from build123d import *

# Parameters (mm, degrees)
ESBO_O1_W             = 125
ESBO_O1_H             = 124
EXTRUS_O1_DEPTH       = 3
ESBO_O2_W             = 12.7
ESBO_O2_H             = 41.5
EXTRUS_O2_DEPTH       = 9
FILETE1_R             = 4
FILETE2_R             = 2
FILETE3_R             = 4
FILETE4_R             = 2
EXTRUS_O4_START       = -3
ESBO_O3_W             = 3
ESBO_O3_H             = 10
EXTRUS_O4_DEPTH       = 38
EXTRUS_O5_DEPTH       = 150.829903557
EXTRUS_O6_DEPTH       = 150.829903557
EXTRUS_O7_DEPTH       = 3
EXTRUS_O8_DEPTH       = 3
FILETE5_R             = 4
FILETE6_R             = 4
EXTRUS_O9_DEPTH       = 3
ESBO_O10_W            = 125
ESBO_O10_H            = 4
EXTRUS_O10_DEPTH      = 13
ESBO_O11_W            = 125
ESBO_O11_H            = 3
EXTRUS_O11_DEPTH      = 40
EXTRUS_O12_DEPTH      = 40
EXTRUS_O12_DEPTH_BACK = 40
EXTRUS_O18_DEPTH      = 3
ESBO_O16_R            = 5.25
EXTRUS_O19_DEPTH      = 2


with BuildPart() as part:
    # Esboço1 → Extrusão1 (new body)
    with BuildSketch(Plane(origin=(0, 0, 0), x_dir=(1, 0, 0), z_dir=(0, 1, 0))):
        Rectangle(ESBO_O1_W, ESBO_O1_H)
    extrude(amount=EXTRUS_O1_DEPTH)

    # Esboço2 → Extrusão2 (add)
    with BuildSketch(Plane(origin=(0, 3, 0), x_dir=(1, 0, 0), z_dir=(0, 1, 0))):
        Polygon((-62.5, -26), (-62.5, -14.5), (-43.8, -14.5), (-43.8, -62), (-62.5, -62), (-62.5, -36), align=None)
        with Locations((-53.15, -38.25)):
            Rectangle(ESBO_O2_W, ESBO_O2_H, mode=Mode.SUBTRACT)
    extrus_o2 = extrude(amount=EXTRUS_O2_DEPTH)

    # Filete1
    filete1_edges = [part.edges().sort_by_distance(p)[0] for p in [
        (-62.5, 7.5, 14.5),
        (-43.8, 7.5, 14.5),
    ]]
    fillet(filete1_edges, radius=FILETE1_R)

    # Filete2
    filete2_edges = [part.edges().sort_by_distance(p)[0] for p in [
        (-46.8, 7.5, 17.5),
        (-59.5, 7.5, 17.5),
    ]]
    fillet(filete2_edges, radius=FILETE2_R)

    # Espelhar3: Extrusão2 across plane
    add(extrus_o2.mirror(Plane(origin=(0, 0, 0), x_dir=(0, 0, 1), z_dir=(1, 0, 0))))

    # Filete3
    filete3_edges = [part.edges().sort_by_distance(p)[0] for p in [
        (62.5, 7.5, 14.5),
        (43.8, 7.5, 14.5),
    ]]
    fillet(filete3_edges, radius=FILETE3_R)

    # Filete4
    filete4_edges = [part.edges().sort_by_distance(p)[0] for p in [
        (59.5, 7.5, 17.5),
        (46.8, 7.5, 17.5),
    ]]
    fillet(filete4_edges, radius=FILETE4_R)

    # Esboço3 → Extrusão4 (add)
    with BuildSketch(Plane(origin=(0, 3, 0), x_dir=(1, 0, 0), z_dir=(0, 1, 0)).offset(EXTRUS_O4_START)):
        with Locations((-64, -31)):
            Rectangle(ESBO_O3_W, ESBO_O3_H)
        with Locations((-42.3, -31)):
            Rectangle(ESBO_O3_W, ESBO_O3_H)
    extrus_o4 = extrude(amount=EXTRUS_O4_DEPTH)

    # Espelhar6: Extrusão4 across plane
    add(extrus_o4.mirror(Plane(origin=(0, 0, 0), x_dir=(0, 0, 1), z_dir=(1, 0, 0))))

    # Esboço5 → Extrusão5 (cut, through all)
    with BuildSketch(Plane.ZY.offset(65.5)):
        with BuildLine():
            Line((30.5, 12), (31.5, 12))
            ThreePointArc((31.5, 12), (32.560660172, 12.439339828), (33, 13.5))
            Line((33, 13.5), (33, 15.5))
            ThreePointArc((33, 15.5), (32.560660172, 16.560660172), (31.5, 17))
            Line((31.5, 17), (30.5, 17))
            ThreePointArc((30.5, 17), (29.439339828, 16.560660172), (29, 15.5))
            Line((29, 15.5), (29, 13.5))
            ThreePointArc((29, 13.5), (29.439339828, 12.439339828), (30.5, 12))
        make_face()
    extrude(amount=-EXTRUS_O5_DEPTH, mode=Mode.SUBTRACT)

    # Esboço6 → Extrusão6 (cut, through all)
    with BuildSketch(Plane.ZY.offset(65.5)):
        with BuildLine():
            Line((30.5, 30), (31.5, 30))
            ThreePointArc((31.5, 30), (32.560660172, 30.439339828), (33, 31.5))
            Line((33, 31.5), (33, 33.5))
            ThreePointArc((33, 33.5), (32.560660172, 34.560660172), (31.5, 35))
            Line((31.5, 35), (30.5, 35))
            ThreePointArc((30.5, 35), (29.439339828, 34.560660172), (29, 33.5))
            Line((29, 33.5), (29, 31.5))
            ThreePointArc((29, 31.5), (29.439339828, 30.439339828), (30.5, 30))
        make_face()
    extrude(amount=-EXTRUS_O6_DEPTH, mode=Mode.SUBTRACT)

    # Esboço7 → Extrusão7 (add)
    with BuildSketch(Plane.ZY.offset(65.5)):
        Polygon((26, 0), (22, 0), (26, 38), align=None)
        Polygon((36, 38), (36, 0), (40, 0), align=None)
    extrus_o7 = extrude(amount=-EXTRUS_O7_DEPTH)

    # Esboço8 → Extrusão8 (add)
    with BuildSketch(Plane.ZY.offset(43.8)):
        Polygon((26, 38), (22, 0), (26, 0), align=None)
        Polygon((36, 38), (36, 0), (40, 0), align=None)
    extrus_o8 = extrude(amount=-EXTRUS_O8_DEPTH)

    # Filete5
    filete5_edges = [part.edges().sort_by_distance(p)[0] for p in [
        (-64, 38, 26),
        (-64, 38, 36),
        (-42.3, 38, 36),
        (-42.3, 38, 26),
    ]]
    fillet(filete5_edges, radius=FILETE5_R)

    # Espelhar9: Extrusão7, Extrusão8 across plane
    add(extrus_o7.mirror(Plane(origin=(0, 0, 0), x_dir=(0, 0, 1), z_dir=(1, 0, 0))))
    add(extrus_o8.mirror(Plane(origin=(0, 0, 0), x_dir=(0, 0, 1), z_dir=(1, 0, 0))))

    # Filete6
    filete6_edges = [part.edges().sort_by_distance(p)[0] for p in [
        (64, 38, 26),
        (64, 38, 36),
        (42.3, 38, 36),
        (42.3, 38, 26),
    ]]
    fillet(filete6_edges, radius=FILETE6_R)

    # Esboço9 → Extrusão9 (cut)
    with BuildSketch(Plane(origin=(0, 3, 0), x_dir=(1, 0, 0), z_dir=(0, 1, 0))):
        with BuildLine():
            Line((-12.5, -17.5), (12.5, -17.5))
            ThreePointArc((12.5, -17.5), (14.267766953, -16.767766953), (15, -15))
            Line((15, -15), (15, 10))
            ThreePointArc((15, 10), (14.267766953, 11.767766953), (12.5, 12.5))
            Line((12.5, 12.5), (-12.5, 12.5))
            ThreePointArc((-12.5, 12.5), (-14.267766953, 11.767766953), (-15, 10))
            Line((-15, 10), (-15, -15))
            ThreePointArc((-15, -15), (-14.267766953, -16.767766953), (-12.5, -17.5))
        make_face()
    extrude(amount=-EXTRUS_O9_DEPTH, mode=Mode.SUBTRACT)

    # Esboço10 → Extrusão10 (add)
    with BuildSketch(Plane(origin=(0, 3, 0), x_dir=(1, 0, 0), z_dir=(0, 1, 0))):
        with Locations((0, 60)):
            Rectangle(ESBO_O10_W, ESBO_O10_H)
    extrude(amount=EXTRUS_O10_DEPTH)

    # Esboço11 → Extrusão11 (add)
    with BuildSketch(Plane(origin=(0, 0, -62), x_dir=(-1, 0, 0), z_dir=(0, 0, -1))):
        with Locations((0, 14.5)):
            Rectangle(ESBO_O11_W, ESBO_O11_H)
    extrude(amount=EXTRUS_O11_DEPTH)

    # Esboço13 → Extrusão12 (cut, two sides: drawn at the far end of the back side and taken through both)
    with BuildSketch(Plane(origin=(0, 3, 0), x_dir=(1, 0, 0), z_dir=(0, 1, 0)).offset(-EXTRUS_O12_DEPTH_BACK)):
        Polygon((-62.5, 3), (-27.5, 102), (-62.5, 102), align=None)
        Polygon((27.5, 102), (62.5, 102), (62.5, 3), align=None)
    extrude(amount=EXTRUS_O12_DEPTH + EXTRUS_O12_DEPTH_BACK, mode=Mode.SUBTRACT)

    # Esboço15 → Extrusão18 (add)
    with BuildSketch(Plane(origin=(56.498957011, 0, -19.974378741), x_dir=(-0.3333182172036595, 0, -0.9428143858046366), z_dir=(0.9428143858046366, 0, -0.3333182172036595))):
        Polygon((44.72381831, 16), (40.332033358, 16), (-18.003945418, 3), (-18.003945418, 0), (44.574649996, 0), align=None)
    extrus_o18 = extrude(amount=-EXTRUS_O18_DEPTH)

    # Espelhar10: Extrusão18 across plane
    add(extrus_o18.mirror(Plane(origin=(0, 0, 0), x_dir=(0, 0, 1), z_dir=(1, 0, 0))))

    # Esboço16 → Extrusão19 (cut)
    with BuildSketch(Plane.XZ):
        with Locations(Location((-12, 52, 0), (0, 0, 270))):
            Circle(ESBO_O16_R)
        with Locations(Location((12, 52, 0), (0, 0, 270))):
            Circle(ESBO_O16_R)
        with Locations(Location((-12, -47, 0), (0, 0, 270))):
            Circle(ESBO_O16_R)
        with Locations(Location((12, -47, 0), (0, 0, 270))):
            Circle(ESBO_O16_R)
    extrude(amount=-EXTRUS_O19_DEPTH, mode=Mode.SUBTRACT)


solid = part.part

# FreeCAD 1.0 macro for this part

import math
import FreeCAD as App
import Part
import Sketcher
from FreeCAD import Vector


def edges_at(feature, points):
    """Names of the edges that pass closest to the given points."""
    edges = feature.Shape.Edges
    near = lambda p: min(range(len(edges)), key=lambda i: edges[i].distToShape(Part.Vertex(*p))[0])
    return sorted({f"Edge{near(p) + 1}" for p in points})

doc = App.newDocument("Part")
body = doc.addObject("PartDesign::Body", "Body")

# Sketch on XZ plane
sketch1 = body.newObject("Sketcher::SketchObject", "Sketch")
sketch1.AttachmentSupport = (doc.getObject("XZ_Plane"), [""])
sketch1.MapMode = "FlatFace"
sketch1.addGeometry([
    Part.LineSegment(Vector(-62.5, -62, 0), Vector(-62.5, 62, 0)),
    Part.LineSegment(Vector(-62.5, 62, 0), Vector(62.5, 62, 0)),
    Part.LineSegment(Vector(62.5, 62, 0), Vector(62.5, -62, 0)),
    Part.LineSegment(Vector(62.5, -62, 0), Vector(-62.5, -62, 0)),
], False)
sketch1.addConstraint([
    Sketcher.Constraint("Coincident", 0, 2, 1, 1),
    Sketcher.Constraint("Coincident", 1, 2, 2, 1),
    Sketcher.Constraint("Coincident", 2, 2, 3, 1),
    Sketcher.Constraint("Coincident", 3, 2, 0, 1),
    Sketcher.Constraint("Vertical", 0),
    Sketcher.Constraint("Horizontal", 1),
    Sketcher.Constraint("Vertical", 2),
    Sketcher.Constraint("Horizontal", 3),
    Sketcher.Constraint("Symmetric", 0, 2, 2, 2, -1, 1),
    Sketcher.Constraint("DistanceX", 1, 1, 1, 2, 125.0),
    Sketcher.Constraint("DistanceY", 0, 1, 0, 2, 124.0),
])
pad1 = body.newObject("PartDesign::Pad", "Pad")
pad1.Profile = sketch1
pad1.Length = 3
pad1.Reversed = True

# Sketch on XZ plane
sketch2 = body.newObject("Sketcher::SketchObject", "Sketch001")
sketch2.AttachmentSupport = (doc.getObject("XZ_Plane"), [""])
sketch2.MapMode = "FlatFace"
sketch2.AttachmentOffset = App.Placement(Vector(0, 0, -3), App.Rotation())
sketch2.addGeometry([
    Part.LineSegment(Vector(-62.5, 14.5, 0), Vector(-62.5, 62, 0)),  # 0
    Part.LineSegment(Vector(-62.5, 62, 0), Vector(-43.8, 62, 0)),  # 1
    Part.LineSegment(Vector(-43.8, 62, 0), Vector(-43.8, 14.5, 0)),  # 2
    Part.LineSegment(Vector(-43.8, 14.5, 0), Vector(-62.5, 14.5, 0)),  # 3
    Part.LineSegment(Vector(-59.5, 59, 0), Vector(-59.5, 17.5, 0)),  # 4
    Part.LineSegment(Vector(-59.5, 17.5, 0), Vector(-46.8, 17.5, 0)),  # 5
    Part.LineSegment(Vector(-46.8, 17.5, 0), Vector(-46.8, 59, 0)),  # 6
    Part.LineSegment(Vector(-46.8, 59, 0), Vector(-59.5, 59, 0)),  # 7
], False)
sketch2.addConstraint([
    Sketcher.Constraint("Coincident", 0, 2, 1, 1),
    Sketcher.Constraint("Coincident", 1, 2, 2, 1),
    Sketcher.Constraint("Coincident", 2, 2, 3, 1),
    Sketcher.Constraint("Coincident", 3, 2, 0, 1),
    Sketcher.Constraint("Coincident", 4, 2, 5, 1),
    Sketcher.Constraint("Coincident", 5, 2, 6, 1),
    Sketcher.Constraint("Coincident", 6, 2, 7, 1),
    Sketcher.Constraint("Coincident", 7, 2, 4, 1),
    Sketcher.Constraint("Vertical", 0),
    Sketcher.Constraint("Horizontal", 1),
    Sketcher.Constraint("Vertical", 2),
    Sketcher.Constraint("Horizontal", 3),
    Sketcher.Constraint("Vertical", 4),
    Sketcher.Constraint("Horizontal", 5),
    Sketcher.Constraint("Vertical", 6),
    Sketcher.Constraint("Horizontal", 7),
    Sketcher.Constraint("DistanceX", 1, 1, 1, 2, 18.7),
    Sketcher.Constraint("DistanceX", 5, 1, 5, 2, 12.7),
    Sketcher.Constraint("DistanceY", 0, 1, 0, 2, 47.5),
    Sketcher.Constraint("DistanceY", 4, 2, 4, 1, 41.5),
    Sketcher.Constraint("DistanceY", -1, 1, 0, 2, 62.0),
    Sketcher.Constraint("DistanceY", -1, 1, 6, 2, 59.0),
    Sketcher.Constraint("DistanceX", 3, 2, 4, 2, 3.0),
    Sketcher.Constraint("DistanceX", 0, 2, -1, 1, 62.5),
])
pad2 = body.newObject("PartDesign::Pad", "Pad001")
pad2.Profile = sketch2
pad2.Length = 9
pad2.Reversed = True
doc.recompute()

fillet = body.newObject("PartDesign::Fillet", "Fillet")
fillet.Base = (pad2, edges_at(pad2, [(-62.5, 7.5, 14.5), (-43.8, 7.5, 14.5)]))
fillet.Radius = 4
doc.recompute()

fillet2 = body.newObject("PartDesign::Fillet", "Fillet001")
fillet2.Base = (fillet, edges_at(fillet, [(-46.8, 7.5, 17.5), (-59.5, 7.5, 17.5)]))
fillet2.Radius = 2
doc.recompute()

mirrored = body.newObject("PartDesign::Mirrored", "Mirrored")
mirrored.Originals = [pad2]
mirrored.MirrorPlane = (doc.getObject("YZ_Plane"), [""])
body.Tip = mirrored
doc.recompute()

fillet3 = body.newObject("PartDesign::Fillet", "Fillet002")
fillet3.Base = (mirrored, edges_at(mirrored, [(62.5, 7.5, 14.5), (43.8, 7.5, 14.5)]))
fillet3.Radius = 4
doc.recompute()

fillet4 = body.newObject("PartDesign::Fillet", "Fillet003")
fillet4.Base = (fillet3, edges_at(fillet3, [(59.5, 7.5, 17.5), (46.8, 7.5, 17.5)]))
fillet4.Radius = 2

# Sketch on XZ plane
sketch3 = body.newObject("Sketcher::SketchObject", "Sketch002")
sketch3.AttachmentSupport = (doc.getObject("XZ_Plane"), [""])
sketch3.MapMode = "FlatFace"
sketch3.addGeometry([
    Part.LineSegment(Vector(-65.5, 26, 0), Vector(-65.5, 36, 0)),  # 0
    Part.LineSegment(Vector(-65.5, 36, 0), Vector(-62.5, 36, 0)),  # 1
    Part.LineSegment(Vector(-62.5, 36, 0), Vector(-62.5, 26, 0)),  # 2
    Part.LineSegment(Vector(-62.5, 26, 0), Vector(-65.5, 26, 0)),  # 3
    Part.LineSegment(Vector(-43.8, 26, 0), Vector(-43.8, 36, 0)),  # 4
    Part.LineSegment(Vector(-43.8, 36, 0), Vector(-40.8, 36, 0)),  # 5
    Part.LineSegment(Vector(-40.8, 36, 0), Vector(-40.8, 26, 0)),  # 6
    Part.LineSegment(Vector(-40.8, 26, 0), Vector(-43.8, 26, 0)),  # 7
], False)
sketch3.addConstraint([
    Sketcher.Constraint("Coincident", 0, 2, 1, 1),
    Sketcher.Constraint("Coincident", 1, 2, 2, 1),
    Sketcher.Constraint("Coincident", 2, 2, 3, 1),
    Sketcher.Constraint("Coincident", 3, 2, 0, 1),
    Sketcher.Constraint("Coincident", 4, 2, 5, 1),
    Sketcher.Constraint("Coincident", 5, 2, 6, 1),
    Sketcher.Constraint("Coincident", 6, 2, 7, 1),
    Sketcher.Constraint("Coincident", 7, 2, 4, 1),
    Sketcher.Constraint("Vertical", 0),
    Sketcher.Constraint("Horizontal", 1),
    Sketcher.Constraint("Vertical", 2),
    Sketcher.Constraint("Horizontal", 3),
    Sketcher.Constraint("Vertical", 4),
    Sketcher.Constraint("Horizontal", 5),
    Sketcher.Constraint("Vertical", 6),
    Sketcher.Constraint("Horizontal", 7),
    Sketcher.Constraint("Horizontal", 1, 2, 4, 2),
    Sketcher.Constraint("Horizontal", 3, 2, 6, 2),
    Sketcher.Constraint("Equal", 3, 5),
    Sketcher.Constraint("DistanceX", 1, 1, 1, 2, 3.0),
    Sketcher.Constraint("DistanceY", 0, 1, 0, 2, 10.0),
    Sketcher.Constraint("DistanceY", -1, 1, 0, 2, 36.0),
    Sketcher.Constraint("DistanceX", 0, 2, -1, 1, 65.5),
    Sketcher.Constraint("DistanceX", 4, 2, -1, 1, 43.8),
])
pad3 = body.newObject("PartDesign::Pad", "Pad002")
pad3.Profile = sketch3
pad3.Length = 38
pad3.Reversed = True
doc.recompute()

mirrored2 = body.newObject("PartDesign::Mirrored", "Mirrored001")
mirrored2.Originals = [pad3]
mirrored2.MirrorPlane = (doc.getObject("YZ_Plane"), [""])
body.Tip = mirrored2

# Sketch on YZ plane
sketch4 = body.newObject("Sketcher::SketchObject", "Sketch003")
sketch4.AttachmentSupport = (doc.getObject("YZ_Plane"), [""])
sketch4.MapMode = "FlatFace"
sketch4.AttachmentOffset = App.Placement(Vector(0, 0, -65.5), App.Rotation())
sketch4.addGeometry([
    Part.LineSegment(Vector(12, 30.5, 0), Vector(12, 31.5, 0)),  # 0
    Part.ArcOfCircle(Part.Circle(Vector(13.5, 31.5, 0), Vector(0, 0, 1), 1.5), math.radians(90), math.radians(180)),  # 1
    Part.LineSegment(Vector(13.5, 33, 0), Vector(15.5, 33, 0)),  # 2
    Part.ArcOfCircle(Part.Circle(Vector(15.5, 31.5, 0), Vector(0, 0, 1), 1.5), math.radians(0), math.radians(90)),  # 3
    Part.LineSegment(Vector(17, 31.5, 0), Vector(17, 30.5, 0)),  # 4
    Part.ArcOfCircle(Part.Circle(Vector(15.5, 30.5, 0), Vector(0, 0, 1), 1.5), math.radians(-90), math.radians(0)),  # 5
    Part.LineSegment(Vector(15.5, 29, 0), Vector(13.5, 29, 0)),  # 6
    Part.ArcOfCircle(Part.Circle(Vector(13.5, 30.5, 0), Vector(0, 0, 1), 1.5), math.radians(180), math.radians(270)),  # 7
], False)
sketch4.addConstraint([
    Sketcher.Constraint("Tangent", 0, 2, 1, 2),
    Sketcher.Constraint("Tangent", 1, 1, 2, 1),
    Sketcher.Constraint("Tangent", 2, 2, 3, 2),
    Sketcher.Constraint("Tangent", 3, 1, 4, 1),
    Sketcher.Constraint("Tangent", 4, 2, 5, 2),
    Sketcher.Constraint("Tangent", 5, 1, 6, 1),
    Sketcher.Constraint("Tangent", 6, 2, 7, 2),
    Sketcher.Constraint("Tangent", 7, 1, 0, 1),
    Sketcher.Constraint("Vertical", 0),
    Sketcher.Constraint("Horizontal", 2),
    Sketcher.Constraint("Vertical", 4),
    Sketcher.Constraint("Horizontal", 6),
    Sketcher.Constraint("Equal", 1, 3),
    Sketcher.Constraint("Equal", 3, 5),
    Sketcher.Constraint("Equal", 5, 7),
    Sketcher.Constraint("Radius", 1, 1.5),
    Sketcher.Constraint("DistanceX", 2, 1, 2, 2, 2.0),
    Sketcher.Constraint("DistanceY", 0, 1, 0, 2, 1.0),
    Sketcher.Constraint("DistanceX", -1, 1, 0, 2, 12.0),
    Sketcher.Constraint("DistanceY", -1, 1, 1, 1, 33.0),
])
pocket1 = body.newObject("PartDesign::Pocket", "Pocket")
pocket1.Profile = sketch4
pocket1.Type = "ThroughAll"
pocket1.Reversed = True

# Sketch on YZ plane
sketch5 = body.newObject("Sketcher::SketchObject", "Sketch004")
sketch5.AttachmentSupport = (doc.getObject("YZ_Plane"), [""])
sketch5.MapMode = "FlatFace"
sketch5.AttachmentOffset = App.Placement(Vector(0, 0, -65.5), App.Rotation())
sketch5.addGeometry([
    Part.LineSegment(Vector(30, 30.5, 0), Vector(30, 31.5, 0)),  # 0
    Part.ArcOfCircle(Part.Circle(Vector(31.5, 31.5, 0), Vector(0, 0, 1), 1.5), math.radians(90), math.radians(180)),  # 1
    Part.LineSegment(Vector(31.5, 33, 0), Vector(33.5, 33, 0)),  # 2
    Part.ArcOfCircle(Part.Circle(Vector(33.5, 31.5, 0), Vector(0, 0, 1), 1.5), math.radians(0), math.radians(90)),  # 3
    Part.LineSegment(Vector(35, 31.5, 0), Vector(35, 30.5, 0)),  # 4
    Part.ArcOfCircle(Part.Circle(Vector(33.5, 30.5, 0), Vector(0, 0, 1), 1.5), math.radians(-90), math.radians(0)),  # 5
    Part.LineSegment(Vector(33.5, 29, 0), Vector(31.5, 29, 0)),  # 6
    Part.ArcOfCircle(Part.Circle(Vector(31.5, 30.5, 0), Vector(0, 0, 1), 1.5), math.radians(180), math.radians(270)),  # 7
], False)
sketch5.addConstraint([
    Sketcher.Constraint("Tangent", 0, 2, 1, 2),
    Sketcher.Constraint("Tangent", 1, 1, 2, 1),
    Sketcher.Constraint("Tangent", 2, 2, 3, 2),
    Sketcher.Constraint("Tangent", 3, 1, 4, 1),
    Sketcher.Constraint("Tangent", 4, 2, 5, 2),
    Sketcher.Constraint("Tangent", 5, 1, 6, 1),
    Sketcher.Constraint("Tangent", 6, 2, 7, 2),
    Sketcher.Constraint("Tangent", 7, 1, 0, 1),
    Sketcher.Constraint("Vertical", 0),
    Sketcher.Constraint("Horizontal", 2),
    Sketcher.Constraint("Vertical", 4),
    Sketcher.Constraint("Horizontal", 6),
    Sketcher.Constraint("Equal", 1, 3),
    Sketcher.Constraint("Equal", 3, 5),
    Sketcher.Constraint("Equal", 5, 7),
    Sketcher.Constraint("Radius", 1, 1.5),
    Sketcher.Constraint("DistanceX", 2, 1, 2, 2, 2.0),
    Sketcher.Constraint("DistanceY", 0, 1, 0, 2, 1.0),
    Sketcher.Constraint("DistanceX", -1, 1, 0, 2, 30.0),
    Sketcher.Constraint("DistanceY", -1, 1, 1, 1, 33.0),
])
pocket2 = body.newObject("PartDesign::Pocket", "Pocket001")
pocket2.Profile = sketch5
pocket2.Type = "ThroughAll"
pocket2.Reversed = True

# Sketch on YZ plane
sketch6 = body.newObject("Sketcher::SketchObject", "Sketch005")
sketch6.AttachmentSupport = (doc.getObject("YZ_Plane"), [""])
sketch6.MapMode = "FlatFace"
sketch6.AttachmentOffset = App.Placement(Vector(0, 0, -65.5), App.Rotation())
sketch6.addGeometry([
    Part.LineSegment(Vector(0, 22, 0), Vector(0, 26, 0)),  # 0
    Part.LineSegment(Vector(0, 26, 0), Vector(38, 26, 0)),  # 1
    Part.LineSegment(Vector(38, 26, 0), Vector(0, 22, 0)),  # 2
    Part.LineSegment(Vector(38, 36, 0), Vector(0, 36, 0)),  # 3
    Part.LineSegment(Vector(0, 36, 0), Vector(0, 40, 0)),  # 4
    Part.LineSegment(Vector(0, 40, 0), Vector(38, 36, 0)),  # 5
], False)
sketch6.addConstraint([
    Sketcher.Constraint("Coincident", 0, 2, 1, 1),
    Sketcher.Constraint("Coincident", 1, 2, 2, 1),
    Sketcher.Constraint("Coincident", 2, 2, 0, 1),
    Sketcher.Constraint("Coincident", 3, 2, 4, 1),
    Sketcher.Constraint("Coincident", 4, 2, 5, 1),
    Sketcher.Constraint("Coincident", 5, 2, 3, 1),
    Sketcher.Constraint("Vertical", 0),
    Sketcher.Constraint("Horizontal", 1),
    Sketcher.Constraint("Horizontal", 3),
    Sketcher.Constraint("Vertical", 4),
    Sketcher.Constraint("PointOnObject", 0, 2, -2),
    Sketcher.Constraint("PointOnObject", 3, 2, -2),
    Sketcher.Constraint("Vertical", 1, 2, 5, 2),
    Sketcher.Constraint("Equal", 0, 4),
    Sketcher.Constraint("DistanceX", 1, 1, 1, 2, 38.0),
    Sketcher.Constraint("DistanceY", 0, 1, 0, 2, 4.0),
    Sketcher.Constraint("DistanceY", -1, 1, 0, 2, 26.0),
    Sketcher.Constraint("DistanceY", -1, 1, 3, 2, 36.0),
])
pad4 = body.newObject("PartDesign::Pad", "Pad003")
pad4.Profile = sketch6
pad4.Length = 3

# Sketch on YZ plane
sketch7 = body.newObject("Sketcher::SketchObject", "Sketch006")
sketch7.AttachmentSupport = (doc.getObject("YZ_Plane"), [""])
sketch7.MapMode = "FlatFace"
sketch7.AttachmentOffset = App.Placement(Vector(0, 0, -43.8), App.Rotation())
sketch7.addGeometry([
    Part.LineSegment(Vector(38, 26, 0), Vector(0, 22, 0)),  # 0
    Part.LineSegment(Vector(0, 22, 0), Vector(0, 26, 0)),  # 1
    Part.LineSegment(Vector(0, 26, 0), Vector(38, 26, 0)),  # 2
    Part.LineSegment(Vector(38, 36, 0), Vector(0, 36, 0)),  # 3
    Part.LineSegment(Vector(0, 36, 0), Vector(0, 40, 0)),  # 4
    Part.LineSegment(Vector(0, 40, 0), Vector(38, 36, 0)),  # 5
], False)
sketch7.addConstraint([
    Sketcher.Constraint("Coincident", 0, 2, 1, 1),
    Sketcher.Constraint("Coincident", 1, 2, 2, 1),
    Sketcher.Constraint("Coincident", 2, 2, 0, 1),
    Sketcher.Constraint("Coincident", 3, 2, 4, 1),
    Sketcher.Constraint("Coincident", 4, 2, 5, 1),
    Sketcher.Constraint("Coincident", 5, 2, 3, 1),
    Sketcher.Constraint("Vertical", 1),
    Sketcher.Constraint("Horizontal", 2),
    Sketcher.Constraint("Horizontal", 3),
    Sketcher.Constraint("Vertical", 4),
    Sketcher.Constraint("PointOnObject", 0, 2, -2),
    Sketcher.Constraint("PointOnObject", 3, 2, -2),
    Sketcher.Constraint("Vertical", 2, 2, 5, 2),
    Sketcher.Constraint("Equal", 1, 4),
    Sketcher.Constraint("DistanceX", 2, 1, 2, 2, 38.0),
    Sketcher.Constraint("DistanceY", 1, 1, 1, 2, 4.0),
    Sketcher.Constraint("DistanceY", -1, 1, 0, 2, 22.0),
    Sketcher.Constraint("DistanceY", -1, 1, 3, 2, 36.0),
])
pad5 = body.newObject("PartDesign::Pad", "Pad004")
pad5.Profile = sketch7
pad5.Length = 3
doc.recompute()

fillet5 = body.newObject("PartDesign::Fillet", "Fillet004")
fillet5.Base = (pad5, edges_at(pad5, [
    (-64, 38, 26),
    (-64, 38, 36),
    (-42.3, 38, 36),
    (-42.3, 38, 26),
]))
fillet5.Radius = 4
doc.recompute()

mirrored3 = body.newObject("PartDesign::Mirrored", "Mirrored002")
mirrored3.Originals = [pad4, pad5]
mirrored3.MirrorPlane = (doc.getObject("YZ_Plane"), [""])
body.Tip = mirrored3
doc.recompute()

fillet6 = body.newObject("PartDesign::Fillet", "Fillet005")
fillet6.Base = (mirrored3, edges_at(mirrored3, [
    (64, 38, 26),
    (64, 38, 36),
    (42.3, 38, 36),
    (42.3, 38, 26),
]))
fillet6.Radius = 4

# Sketch on XZ plane
sketch8 = body.newObject("Sketcher::SketchObject", "Sketch007")
sketch8.AttachmentSupport = (doc.getObject("XZ_Plane"), [""])
sketch8.MapMode = "FlatFace"
sketch8.AttachmentOffset = App.Placement(Vector(0, 0, -3), App.Rotation())
sketch8.addGeometry([
    Part.LineSegment(Vector(-12.5, 17.5, 0), Vector(12.5, 17.5, 0)),  # 0
    Part.ArcOfCircle(Part.Circle(Vector(12.5, 15, 0), Vector(0, 0, 1), 2.5), math.radians(0), math.radians(90)),  # 1
    Part.LineSegment(Vector(15, 15, 0), Vector(15, -10, 0)),  # 2
    Part.ArcOfCircle(Part.Circle(Vector(12.5, -10, 0), Vector(0, 0, 1), 2.5), math.radians(-90), math.radians(0)),  # 3
    Part.LineSegment(Vector(12.5, -12.5, 0), Vector(-12.5, -12.5, 0)),  # 4
    Part.ArcOfCircle(Part.Circle(Vector(-12.5, -10, 0), Vector(0, 0, 1), 2.5), math.radians(180), math.radians(270)),  # 5
    Part.LineSegment(Vector(-15, -10, 0), Vector(-15, 15, 0)),  # 6
    Part.ArcOfCircle(Part.Circle(Vector(-12.5, 15, 0), Vector(0, 0, 1), 2.5), math.radians(90), math.radians(180)),  # 7
], False)
sketch8.addConstraint([
    Sketcher.Constraint("Tangent", 0, 2, 1, 2),
    Sketcher.Constraint("Tangent", 1, 1, 2, 1),
    Sketcher.Constraint("Tangent", 2, 2, 3, 2),
    Sketcher.Constraint("Tangent", 3, 1, 4, 1),
    Sketcher.Constraint("Tangent", 4, 2, 5, 2),
    Sketcher.Constraint("Tangent", 5, 1, 6, 1),
    Sketcher.Constraint("Tangent", 6, 2, 7, 2),
    Sketcher.Constraint("Tangent", 7, 1, 0, 1),
    Sketcher.Constraint("Horizontal", 0),
    Sketcher.Constraint("Vertical", 2),
    Sketcher.Constraint("Horizontal", 4),
    Sketcher.Constraint("Vertical", 6),
    Sketcher.Constraint("Equal", 1, 3),
    Sketcher.Constraint("Equal", 3, 5),
    Sketcher.Constraint("Equal", 5, 7),
    Sketcher.Constraint("Equal", 4, 2),
    Sketcher.Constraint("Radius", 1, 2.5),
    Sketcher.Constraint("DistanceX", 0, 1, 0, 2, 25.0),
    Sketcher.Constraint("DistanceY", -1, 1, 1, 3, 15.0),
    Sketcher.Constraint("DistanceX", -1, 1, 1, 1, 15.0),
])
pocket3 = body.newObject("PartDesign::Pocket", "Pocket002")
pocket3.Profile = sketch8
pocket3.Length = 3
pocket3.Reversed = True

# Sketch on XZ plane
sketch9 = body.newObject("Sketcher::SketchObject", "Sketch008")
sketch9.AttachmentSupport = (doc.getObject("XZ_Plane"), [""])
sketch9.MapMode = "FlatFace"
sketch9.AttachmentOffset = App.Placement(Vector(0, 0, -3), App.Rotation())
sketch9.addGeometry([
    Part.LineSegment(Vector(-62.5, -62, 0), Vector(-62.5, -58, 0)),
    Part.LineSegment(Vector(-62.5, -58, 0), Vector(62.5, -58, 0)),
    Part.LineSegment(Vector(62.5, -58, 0), Vector(62.5, -62, 0)),
    Part.LineSegment(Vector(62.5, -62, 0), Vector(-62.5, -62, 0)),
], False)
sketch9.addConstraint([
    Sketcher.Constraint("Coincident", 0, 2, 1, 1),
    Sketcher.Constraint("Coincident", 1, 2, 2, 1),
    Sketcher.Constraint("Coincident", 2, 2, 3, 1),
    Sketcher.Constraint("Coincident", 3, 2, 0, 1),
    Sketcher.Constraint("Vertical", 0),
    Sketcher.Constraint("Horizontal", 1),
    Sketcher.Constraint("Vertical", 2),
    Sketcher.Constraint("Horizontal", 3),
    Sketcher.Constraint("DistanceX", 1, 1, 1, 2, 125.0),
    Sketcher.Constraint("DistanceY", 0, 1, 0, 2, 4.0),
    Sketcher.Constraint("DistanceY", 0, 2, -1, 1, 58.0),
    Sketcher.Constraint("DistanceX", 0, 2, -1, 1, 62.5),
])
pad6 = body.newObject("PartDesign::Pad", "Pad005")
pad6.Profile = sketch9
pad6.Length = 13
pad6.Reversed = True

# Sketch on XY plane
sketch10 = body.newObject("Sketcher::SketchObject", "Sketch009")
sketch10.AttachmentSupport = (doc.getObject("XY_Plane"), [""])
sketch10.MapMode = "FlatFace"
sketch10.AttachmentOffset = App.Placement(Vector(0, 0, -62), App.Rotation())
sketch10.addGeometry([
    Part.LineSegment(Vector(62.5, 16, 0), Vector(62.5, 13, 0)),
    Part.LineSegment(Vector(62.5, 13, 0), Vector(-62.5, 13, 0)),
    Part.LineSegment(Vector(-62.5, 13, 0), Vector(-62.5, 16, 0)),
    Part.LineSegment(Vector(-62.5, 16, 0), Vector(62.5, 16, 0)),
], False)
sketch10.addConstraint([
    Sketcher.Constraint("Coincident", 0, 2, 1, 1),
    Sketcher.Constraint("Coincident", 1, 2, 2, 1),
    Sketcher.Constraint("Coincident", 2, 2, 3, 1),
    Sketcher.Constraint("Coincident", 3, 2, 0, 1),
    Sketcher.Constraint("Vertical", 0),
    Sketcher.Constraint("Horizontal", 1),
    Sketcher.Constraint("Vertical", 2),
    Sketcher.Constraint("Horizontal", 3),
    Sketcher.Constraint("DistanceX", 1, 2, 1, 1, 125.0),
    Sketcher.Constraint("DistanceY", 0, 2, 0, 1, 3.0),
    Sketcher.Constraint("DistanceY", -1, 1, 0, 2, 13.0),
    Sketcher.Constraint("DistanceX", -1, 1, 0, 2, 62.5),
])
pad7 = body.newObject("PartDesign::Pad", "Pad006")
pad7.Profile = sketch10
pad7.Length = 40
pad7.Reversed = True

# Sketch on XZ plane
sketch11 = body.newObject("Sketcher::SketchObject", "Sketch010")
sketch11.AttachmentSupport = (doc.getObject("XZ_Plane"), [""])
sketch11.MapMode = "FlatFace"
sketch11.AttachmentOffset = App.Placement(Vector(0, 0, -3), App.Rotation())
sketch11.addGeometry([
    Part.LineSegment(Vector(-62.5, -3, 0), Vector(-27.5, -102, 0)),  # 0
    Part.LineSegment(Vector(-27.5, -102, 0), Vector(-62.5, -102, 0)),  # 1
    Part.LineSegment(Vector(-62.5, -102, 0), Vector(-62.5, -3, 0)),  # 2
    Part.LineSegment(Vector(62.5, -102, 0), Vector(27.5, -102, 0)),  # 3
    Part.LineSegment(Vector(27.5, -102, 0), Vector(62.5, -3, 0)),  # 4
    Part.LineSegment(Vector(62.5, -3, 0), Vector(62.5, -102, 0)),  # 5
], False)
sketch11.addConstraint([
    Sketcher.Constraint("Coincident", 0, 2, 1, 1),
    Sketcher.Constraint("Coincident", 1, 2, 2, 1),
    Sketcher.Constraint("Coincident", 2, 2, 0, 1),
    Sketcher.Constraint("Coincident", 3, 2, 4, 1),
    Sketcher.Constraint("Coincident", 4, 2, 5, 1),
    Sketcher.Constraint("Coincident", 5, 2, 3, 1),
    Sketcher.Constraint("Horizontal", 1),
    Sketcher.Constraint("Vertical", 2),
    Sketcher.Constraint("Horizontal", 3),
    Sketcher.Constraint("Vertical", 5),
    Sketcher.Constraint("Symmetric", 0, 2, 3, 2, -2),
    Sketcher.Constraint("Symmetric", 2, 2, 4, 2, -2),
    Sketcher.Constraint("DistanceX", 1, 2, 1, 1, 35.0),
    Sketcher.Constraint("DistanceY", 2, 1, 2, 2, 99.0),
    Sketcher.Constraint("DistanceY", 0, 2, -1, 1, 102.0),
    Sketcher.Constraint("DistanceX", 0, 2, 3, 2, 55.0),
])
pocket4 = body.newObject("PartDesign::Pocket", "Pocket003")
pocket4.Profile = sketch11
pocket4.Type = "ThroughAll"
pocket4.Midplane = True

# Sketch on an angled plane
sketch12 = body.newObject("Sketcher::SketchObject", "Sketch011")
sketch12.Placement = App.Placement(Vector(56.498957, 0, -19.974379), App.Rotation(Vector(-0.333318217, 0, -0.942814386), Vector(0, 1, 0), Vector(0.942814386, 0, -0.333318217), "ZXY"))
sketch12.addGeometry([
    Part.LineSegment(Vector(44.723818, 16, 0), Vector(40.332033, 16, 0)),  # 0
    Part.LineSegment(Vector(40.332033, 16, 0), Vector(-18.003945, 3, 0)),  # 1
    Part.LineSegment(Vector(-18.003945, 3, 0), Vector(-18.003945, 0, 0)),  # 2
    Part.LineSegment(Vector(-18.003945, 0, 0), Vector(44.57465, 0, 0)),  # 3
    Part.LineSegment(Vector(44.57465, 0, 0), Vector(44.723818, 16, 0)),  # 4
], False)
sketch12.addConstraint([
    Sketcher.Constraint("Coincident", 0, 2, 1, 1),
    Sketcher.Constraint("Coincident", 1, 2, 2, 1),
    Sketcher.Constraint("Coincident", 2, 2, 3, 1),
    Sketcher.Constraint("Coincident", 3, 2, 4, 1),
    Sketcher.Constraint("Coincident", 4, 2, 0, 1),
    Sketcher.Constraint("Horizontal", 0),
    Sketcher.Constraint("Vertical", 2),
    Sketcher.Constraint("Horizontal", 3),
    Sketcher.Constraint("PointOnObject", 2, 2, -1),
    Sketcher.Constraint("DistanceY", 2, 2, 2, 1, 3.0),
    Sketcher.Constraint("DistanceY", -1, 1, 0, 2, 16.0),
    Sketcher.Constraint("DistanceX", 0, 2, 0, 1, 4.391785),
    Sketcher.Constraint("DistanceX", 3, 1, 3, 2, 62.578595),
    Sketcher.Constraint("DistanceX", -1, 1, 3, 2, 44.57465),
    Sketcher.Constraint("DistanceX", -1, 1, 4, 2, 44.723818),
])
pad8 = body.newObject("PartDesign::Pad", "Pad007")
pad8.Profile = sketch12
pad8.Length = 3
pad8.Reversed = True
doc.recompute()

mirrored4 = body.newObject("PartDesign::Mirrored", "Mirrored003")
mirrored4.Originals = [pad8]
mirrored4.MirrorPlane = (doc.getObject("YZ_Plane"), [""])
body.Tip = mirrored4

# Sketch on XZ plane
sketch13 = body.newObject("Sketcher::SketchObject", "Sketch012")
sketch13.AttachmentSupport = (doc.getObject("XZ_Plane"), [""])
sketch13.MapMode = "FlatFace"
sketch13.addGeometry([
    Part.Circle(Vector(-12, 52, 0), Vector(0, 0, 1), 5.25),
    Part.Circle(Vector(12, 52, 0), Vector(0, 0, 1), 5.25),
    Part.Circle(Vector(-12, -47, 0), Vector(0, 0, 1), 5.25),
    Part.Circle(Vector(12, -47, 0), Vector(0, 0, 1), 5.25),
], False)
sketch13.addConstraint([
    Sketcher.Constraint("Equal", 0, 1),
    Sketcher.Constraint("Equal", 1, 2),
    Sketcher.Constraint("Equal", 2, 3),
    Sketcher.Constraint("Symmetric", 0, 3, 1, 3, -2),
    Sketcher.Constraint("Symmetric", 2, 3, 3, 3, -2),
    Sketcher.Constraint("Vertical", 0, 3, 2, 3),
    Sketcher.Constraint("Diameter", 0, 10.5),
    Sketcher.Constraint("DistanceX", 0, 3, -1, 1, 12.0),
    Sketcher.Constraint("DistanceY", -1, 1, 0, 3, 52.0),
    Sketcher.Constraint("DistanceY", 2, 3, -1, 1, 47.0),
])
pocket5 = body.newObject("PartDesign::Pocket", "Pocket004")
pocket5.Profile = sketch13
pocket5.Length = 2

doc.recompute()
